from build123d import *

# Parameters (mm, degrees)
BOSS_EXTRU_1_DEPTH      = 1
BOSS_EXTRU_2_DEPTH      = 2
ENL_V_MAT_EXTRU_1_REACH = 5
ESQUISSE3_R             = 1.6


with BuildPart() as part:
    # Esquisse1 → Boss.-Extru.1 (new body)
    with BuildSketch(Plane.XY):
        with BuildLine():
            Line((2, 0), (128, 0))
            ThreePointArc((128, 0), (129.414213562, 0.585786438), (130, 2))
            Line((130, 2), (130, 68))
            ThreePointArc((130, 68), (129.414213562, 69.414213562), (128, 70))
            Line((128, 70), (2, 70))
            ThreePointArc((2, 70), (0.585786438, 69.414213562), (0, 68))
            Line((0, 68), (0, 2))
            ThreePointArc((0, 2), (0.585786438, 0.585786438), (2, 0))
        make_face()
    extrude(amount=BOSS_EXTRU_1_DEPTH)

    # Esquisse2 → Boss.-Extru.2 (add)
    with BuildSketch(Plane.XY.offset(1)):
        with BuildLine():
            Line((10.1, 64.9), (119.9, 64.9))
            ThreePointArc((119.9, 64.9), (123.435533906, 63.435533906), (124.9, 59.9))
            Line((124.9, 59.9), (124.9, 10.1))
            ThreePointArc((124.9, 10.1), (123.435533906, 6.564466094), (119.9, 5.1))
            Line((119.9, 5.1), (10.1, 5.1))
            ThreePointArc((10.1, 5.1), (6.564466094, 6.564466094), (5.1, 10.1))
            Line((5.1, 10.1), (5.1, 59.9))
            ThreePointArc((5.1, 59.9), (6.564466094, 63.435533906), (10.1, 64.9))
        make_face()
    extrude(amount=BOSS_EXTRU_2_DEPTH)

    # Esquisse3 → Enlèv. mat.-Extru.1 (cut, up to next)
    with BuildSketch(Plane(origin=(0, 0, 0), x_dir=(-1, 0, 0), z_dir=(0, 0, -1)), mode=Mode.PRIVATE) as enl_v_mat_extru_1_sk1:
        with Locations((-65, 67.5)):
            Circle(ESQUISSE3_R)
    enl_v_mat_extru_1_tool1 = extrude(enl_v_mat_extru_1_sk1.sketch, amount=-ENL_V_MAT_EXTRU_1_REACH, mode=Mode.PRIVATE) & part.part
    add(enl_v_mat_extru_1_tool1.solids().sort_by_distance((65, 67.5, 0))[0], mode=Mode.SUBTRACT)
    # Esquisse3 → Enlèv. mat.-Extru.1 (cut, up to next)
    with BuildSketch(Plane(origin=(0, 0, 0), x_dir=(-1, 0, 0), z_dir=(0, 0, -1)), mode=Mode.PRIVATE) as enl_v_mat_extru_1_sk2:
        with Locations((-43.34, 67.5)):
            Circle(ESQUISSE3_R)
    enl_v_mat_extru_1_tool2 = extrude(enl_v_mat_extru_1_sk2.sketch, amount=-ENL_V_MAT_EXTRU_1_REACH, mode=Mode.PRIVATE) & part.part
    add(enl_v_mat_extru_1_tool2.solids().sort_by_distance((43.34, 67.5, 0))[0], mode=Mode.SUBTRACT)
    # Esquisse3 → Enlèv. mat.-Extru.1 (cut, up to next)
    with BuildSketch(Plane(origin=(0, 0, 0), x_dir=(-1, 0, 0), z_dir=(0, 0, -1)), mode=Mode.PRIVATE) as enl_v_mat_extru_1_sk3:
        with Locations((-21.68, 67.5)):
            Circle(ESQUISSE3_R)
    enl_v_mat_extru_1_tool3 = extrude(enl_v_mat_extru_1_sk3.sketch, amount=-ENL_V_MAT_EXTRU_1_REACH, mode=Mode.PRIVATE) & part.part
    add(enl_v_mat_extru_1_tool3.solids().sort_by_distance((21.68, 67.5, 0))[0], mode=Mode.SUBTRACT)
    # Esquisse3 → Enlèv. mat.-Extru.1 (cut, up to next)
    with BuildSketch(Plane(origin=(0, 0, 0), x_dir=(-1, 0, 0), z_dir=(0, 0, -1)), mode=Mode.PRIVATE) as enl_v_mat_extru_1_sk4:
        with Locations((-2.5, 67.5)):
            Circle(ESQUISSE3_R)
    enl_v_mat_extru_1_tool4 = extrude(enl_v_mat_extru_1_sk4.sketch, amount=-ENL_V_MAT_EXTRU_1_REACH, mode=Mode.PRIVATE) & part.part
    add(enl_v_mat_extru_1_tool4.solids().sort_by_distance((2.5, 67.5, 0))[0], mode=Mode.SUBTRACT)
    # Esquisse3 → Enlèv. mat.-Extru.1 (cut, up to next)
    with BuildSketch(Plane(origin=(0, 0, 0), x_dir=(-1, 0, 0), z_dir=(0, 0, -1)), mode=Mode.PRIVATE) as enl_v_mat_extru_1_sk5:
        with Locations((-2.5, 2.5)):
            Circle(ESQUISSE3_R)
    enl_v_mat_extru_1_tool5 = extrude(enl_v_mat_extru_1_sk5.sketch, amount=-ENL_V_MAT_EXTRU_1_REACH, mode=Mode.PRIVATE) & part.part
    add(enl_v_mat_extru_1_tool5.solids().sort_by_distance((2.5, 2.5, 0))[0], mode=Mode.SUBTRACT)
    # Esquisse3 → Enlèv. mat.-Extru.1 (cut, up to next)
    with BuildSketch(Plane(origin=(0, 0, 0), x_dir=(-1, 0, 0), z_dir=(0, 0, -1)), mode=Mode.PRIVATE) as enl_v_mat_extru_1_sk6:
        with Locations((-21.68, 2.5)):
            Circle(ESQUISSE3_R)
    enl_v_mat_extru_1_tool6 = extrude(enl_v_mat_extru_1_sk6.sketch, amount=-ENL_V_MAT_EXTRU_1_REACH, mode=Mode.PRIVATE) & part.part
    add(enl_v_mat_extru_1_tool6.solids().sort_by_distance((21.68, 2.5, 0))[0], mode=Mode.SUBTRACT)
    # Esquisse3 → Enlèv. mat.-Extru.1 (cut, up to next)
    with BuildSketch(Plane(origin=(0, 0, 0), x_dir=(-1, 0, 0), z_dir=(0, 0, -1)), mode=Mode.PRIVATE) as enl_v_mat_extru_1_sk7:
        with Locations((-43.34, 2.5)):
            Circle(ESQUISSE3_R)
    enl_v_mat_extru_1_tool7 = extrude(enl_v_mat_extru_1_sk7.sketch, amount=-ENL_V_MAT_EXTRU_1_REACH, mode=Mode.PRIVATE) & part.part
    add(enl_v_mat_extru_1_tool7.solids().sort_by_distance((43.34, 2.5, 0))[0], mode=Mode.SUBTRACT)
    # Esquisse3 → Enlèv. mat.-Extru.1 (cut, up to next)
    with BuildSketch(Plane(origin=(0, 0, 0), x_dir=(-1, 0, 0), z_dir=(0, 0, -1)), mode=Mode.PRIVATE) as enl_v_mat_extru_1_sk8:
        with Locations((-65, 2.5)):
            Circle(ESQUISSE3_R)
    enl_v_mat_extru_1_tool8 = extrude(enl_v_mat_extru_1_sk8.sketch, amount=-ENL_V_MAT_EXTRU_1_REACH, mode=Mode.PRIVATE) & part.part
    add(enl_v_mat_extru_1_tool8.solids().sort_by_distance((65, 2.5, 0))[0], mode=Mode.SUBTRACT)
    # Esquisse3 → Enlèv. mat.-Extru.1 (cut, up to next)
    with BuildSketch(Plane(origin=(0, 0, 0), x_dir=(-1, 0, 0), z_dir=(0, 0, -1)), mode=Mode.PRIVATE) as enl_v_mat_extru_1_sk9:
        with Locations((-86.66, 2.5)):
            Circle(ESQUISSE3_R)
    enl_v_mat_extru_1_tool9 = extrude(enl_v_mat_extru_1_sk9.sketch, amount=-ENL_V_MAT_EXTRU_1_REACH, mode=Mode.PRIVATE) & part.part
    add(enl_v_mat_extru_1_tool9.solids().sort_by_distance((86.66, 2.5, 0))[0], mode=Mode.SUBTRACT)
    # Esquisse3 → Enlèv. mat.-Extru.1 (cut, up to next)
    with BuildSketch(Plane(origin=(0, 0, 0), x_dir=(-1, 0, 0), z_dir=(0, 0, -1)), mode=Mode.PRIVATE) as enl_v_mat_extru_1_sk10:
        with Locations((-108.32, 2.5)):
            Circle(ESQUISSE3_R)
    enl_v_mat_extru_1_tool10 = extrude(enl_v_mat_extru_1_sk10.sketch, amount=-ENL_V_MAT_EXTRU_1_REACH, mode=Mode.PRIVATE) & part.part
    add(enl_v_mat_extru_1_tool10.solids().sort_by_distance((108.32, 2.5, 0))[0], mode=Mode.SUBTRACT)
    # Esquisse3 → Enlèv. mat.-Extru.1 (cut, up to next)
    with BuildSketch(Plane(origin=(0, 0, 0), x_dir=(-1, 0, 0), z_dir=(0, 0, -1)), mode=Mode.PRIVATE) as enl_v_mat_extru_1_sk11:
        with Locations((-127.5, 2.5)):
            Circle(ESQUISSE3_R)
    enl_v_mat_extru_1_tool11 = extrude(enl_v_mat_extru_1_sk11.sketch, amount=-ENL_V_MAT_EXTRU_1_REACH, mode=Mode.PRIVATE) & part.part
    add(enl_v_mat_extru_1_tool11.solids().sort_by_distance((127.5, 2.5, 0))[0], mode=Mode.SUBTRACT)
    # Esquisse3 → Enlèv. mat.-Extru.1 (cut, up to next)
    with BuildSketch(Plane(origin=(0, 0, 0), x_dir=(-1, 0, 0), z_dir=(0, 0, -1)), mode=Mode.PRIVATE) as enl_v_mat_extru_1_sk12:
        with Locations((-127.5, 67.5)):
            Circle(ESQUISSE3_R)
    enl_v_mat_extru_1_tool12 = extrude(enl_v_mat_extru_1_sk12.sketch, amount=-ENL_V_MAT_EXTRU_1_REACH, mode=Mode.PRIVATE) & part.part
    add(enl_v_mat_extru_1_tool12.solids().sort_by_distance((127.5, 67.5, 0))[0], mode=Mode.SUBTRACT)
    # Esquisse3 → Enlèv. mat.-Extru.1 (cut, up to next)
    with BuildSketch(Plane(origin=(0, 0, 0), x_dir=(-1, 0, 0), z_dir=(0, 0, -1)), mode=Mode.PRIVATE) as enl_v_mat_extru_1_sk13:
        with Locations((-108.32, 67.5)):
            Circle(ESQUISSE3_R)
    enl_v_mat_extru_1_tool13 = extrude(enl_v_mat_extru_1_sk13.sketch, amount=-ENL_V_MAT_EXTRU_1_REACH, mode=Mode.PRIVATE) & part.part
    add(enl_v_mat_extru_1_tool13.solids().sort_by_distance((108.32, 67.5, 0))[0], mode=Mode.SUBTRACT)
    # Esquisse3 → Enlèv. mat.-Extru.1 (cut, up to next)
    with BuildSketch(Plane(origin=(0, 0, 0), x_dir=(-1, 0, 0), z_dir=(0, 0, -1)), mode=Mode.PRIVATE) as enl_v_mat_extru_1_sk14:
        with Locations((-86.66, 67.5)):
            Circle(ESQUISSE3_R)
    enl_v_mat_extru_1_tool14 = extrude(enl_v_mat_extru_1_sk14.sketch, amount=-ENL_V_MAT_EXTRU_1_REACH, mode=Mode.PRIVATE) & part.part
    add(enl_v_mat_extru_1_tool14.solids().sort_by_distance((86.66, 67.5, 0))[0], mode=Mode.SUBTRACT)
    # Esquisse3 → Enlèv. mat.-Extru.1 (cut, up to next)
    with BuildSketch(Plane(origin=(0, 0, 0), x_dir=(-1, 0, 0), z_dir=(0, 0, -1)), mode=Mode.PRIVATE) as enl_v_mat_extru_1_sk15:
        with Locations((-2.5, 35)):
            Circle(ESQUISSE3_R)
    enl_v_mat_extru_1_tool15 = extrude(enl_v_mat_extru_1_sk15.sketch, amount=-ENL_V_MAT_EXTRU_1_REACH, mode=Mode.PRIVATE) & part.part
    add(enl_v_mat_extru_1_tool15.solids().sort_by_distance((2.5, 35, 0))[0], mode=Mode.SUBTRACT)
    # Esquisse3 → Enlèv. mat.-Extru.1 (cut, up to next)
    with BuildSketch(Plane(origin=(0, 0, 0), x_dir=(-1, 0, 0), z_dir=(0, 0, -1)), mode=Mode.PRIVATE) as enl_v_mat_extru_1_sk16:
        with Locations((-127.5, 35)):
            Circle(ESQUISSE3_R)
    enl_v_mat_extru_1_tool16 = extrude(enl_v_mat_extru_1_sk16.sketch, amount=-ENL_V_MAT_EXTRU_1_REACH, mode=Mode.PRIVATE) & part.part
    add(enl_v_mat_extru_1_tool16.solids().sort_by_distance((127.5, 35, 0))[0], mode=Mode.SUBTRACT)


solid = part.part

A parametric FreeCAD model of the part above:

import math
import FreeCAD as App
import Part
import Sketcher

V = App.Vector

doc = App.newDocument("Part")
params = doc.addObject("Spreadsheet::Sheet", "Params")
for row, (alias, value) in enumerate([
    ("sketch1_radius", "2 mm"),
    ("sketch1_width", "126 mm"),
    ("sketch1_height", "66 mm"),
    ("pad1_length", "1 mm"),
    ("sketch2_radius", "5 mm"),
    ("sketch2_width", "109.8 mm"),
    ("sketch2_height", "49.8 mm"),
    ("pad2_length", "2 mm"),
    ("sketch3_diameter", "3.2 mm"),
    ("sketch4_diameter", "3.2 mm"),
    ("sketch5_diameter", "3.2 mm"),
    ("sketch6_diameter", "3.2 mm"),
    ("sketch7_diameter", "3.2 mm"),
    ("sketch8_diameter", "3.2 mm"),
    ("sketch9_diameter", "3.2 mm"),
    ("sketch10_diameter", "3.2 mm"),
    ("sketch11_diameter", "3.2 mm"),
    ("sketch12_diameter", "3.2 mm"),
    ("sketch13_diameter", "3.2 mm"),
    ("sketch14_diameter", "3.2 mm"),
    ("sketch15_diameter", "3.2 mm"),
    ("sketch16_diameter", "3.2 mm"),
    ("sketch17_diameter", "3.2 mm"),
    ("sketch18_diameter", "3.2 mm"),
], start=1):
    params.set(f"A{row}", alias)
    params.set(f"B{row}", "=" + value)
    params.setAlias(f"B{row}", alias)

body = doc.addObject("PartDesign::Body", "Body")

# Sketch on XY plane
sketch1 = doc.addObject("Sketcher::SketchObject", "Sketch")
body.addObject(sketch1)
sketch1.AttachmentSupport = (doc.XY_Plane, [""])
sketch1.MapMode = "FlatFace"
sketch1.addGeometry([
    Part.LineSegment(V(2, 0, 0), V(128, 0, 0)),  # 0
    Part.ArcOfCircle(Part.Circle(V(128, 2, 0), V(0, 0, 1), 2), math.radians(-90), math.radians(0)),  # 1
    Part.LineSegment(V(130, 2, 0), V(130, 68, 0)),  # 2
    Part.ArcOfCircle(Part.Circle(V(128, 68, 0), V(0, 0, 1), 2), math.radians(0), math.radians(90)),  # 3
    Part.LineSegment(V(128, 70, 0), V(2, 70, 0)),  # 4
    Part.ArcOfCircle(Part.Circle(V(2, 68, 0), V(0, 0, 1), 2), math.radians(90), math.radians(180)),  # 5
    Part.LineSegment(V(0, 68, 0), V(0, 2, 0)),  # 6
    Part.ArcOfCircle(Part.Circle(V(2, 2, 0), V(0, 0, 1), 2), math.radians(-180), math.radians(-90)),  # 7
], False)
sketch1.addConstraint([
    Sketcher.Constraint("Tangent", 0, 2, 1, 1),
    Sketcher.Constraint("Tangent", 1, 2, 2, 1),
    Sketcher.Constraint("Tangent", 2, 2, 3, 1),
    Sketcher.Constraint("Tangent", 3, 2, 4, 1),
    Sketcher.Constraint("Tangent", 4, 2, 5, 1),
    Sketcher.Constraint("Tangent", 5, 2, 6, 1),
    Sketcher.Constraint("Tangent", 6, 2, 7, 1),
    Sketcher.Constraint("Tangent", 7, 2, 0, 1),
    Sketcher.Constraint("Horizontal", 0),
    Sketcher.Constraint("Vertical", 2),
    Sketcher.Constraint("Horizontal", 4),
    Sketcher.Constraint("Vertical", 6),
    Sketcher.Constraint("Equal", 1, 3),
    Sketcher.Constraint("Equal", 3, 5),
    Sketcher.Constraint("Equal", 5, 7),
    Sketcher.Constraint("PointOnObject", 0, 2, -1),
    Sketcher.Constraint("PointOnObject", 5, 2, -2),
    Sketcher.Constraint("Radius", 1, 2.0),
    Sketcher.Constraint("DistanceX", 0, 1, 0, 2, 126.0),
    Sketcher.Constraint("DistanceY", 2, 1, 2, 2, 66.0),
])
sketch1.setExpression("Constraints[17]", "Params.sketch1_radius")
sketch1.setExpression("Constraints[18]", "Params.sketch1_width")
sketch1.setExpression("Constraints[19]", "Params.sketch1_height")
pad1 = doc.addObject("PartDesign::Pad", "Pad")
body.addObject(pad1)
pad1.Profile = sketch1
pad1.setExpression("Length", "Params.pad1_length")

# Sketch on XY plane
sketch2 = doc.addObject("Sketcher::SketchObject", "Sketch001")
body.addObject(sketch2)
sketch2.AttachmentSupport = (doc.XY_Plane, [""])
sketch2.MapMode = "FlatFace"
sketch2.AttachmentOffset = App.Placement(V(0, 0, 1), App.Rotation())
sketch2.addGeometry([
    Part.LineSegment(V(120, 65, 0), V(10, 65, 0)),  # 0
    Part.ArcOfCircle(Part.Circle(V(10, 60, 0), V(0, 0, 1), 5), math.radians(90), math.radians(180)),  # 1
    Part.LineSegment(V(5, 60, 0), V(5, 10, 0)),  # 2
    Part.ArcOfCircle(Part.Circle(V(10, 10, 0), V(0, 0, 1), 5), math.radians(180), math.radians(270)),  # 3
    Part.LineSegment(V(10, 5, 0), V(120, 5, 0)),  # 4
    Part.ArcOfCircle(Part.Circle(V(120, 10, 0), V(0, 0, 1), 5), math.radians(-90), math.radians(0)),  # 5
    Part.LineSegment(V(125, 10, 0), V(125, 60, 0)),  # 6
    Part.ArcOfCircle(Part.Circle(V(120, 60, 0), V(0, 0, 1), 5), math.radians(0), math.radians(90)),  # 7
], False)
sketch2.addConstraint([
    Sketcher.Constraint("Tangent", 0, 2, 1, 1),
    Sketcher.Constraint("Tangent", 1, 2, 2, 1),
    Sketcher.Constraint("Tangent", 2, 2, 3, 1),
    Sketcher.Constraint("Tangent", 3, 2, 4, 1),
    Sketcher.Constraint("Tangent", 4, 2, 5, 1),
    Sketcher.Constraint("Tangent", 5, 2, 6, 1),
    Sketcher.Constraint("Tangent", 6, 2, 7, 1),
    Sketcher.Constraint("Tangent", 7, 2, 0, 1),
    Sketcher.Constraint("Horizontal", 0),
    Sketcher.Constraint("Vertical", 2),
    Sketcher.Constraint("Horizontal", 4),
    Sketcher.Constraint("Vertical", 6),
    Sketcher.Constraint("Equal", 1, 3),
    Sketcher.Constraint("Equal", 3, 5),
    Sketcher.Constraint("Equal", 5, 7),
    Sketcher.Constraint("Radius", 1, 5.0),
    Sketcher.Constraint("DistanceX", 0, 2, 0, 1, 109.8),
    Sketcher.Constraint("DistanceY", 2, 2, 2, 1, 49.8),
    Sketcher.Constraint("DistanceX", -1, 1, 1, 3, 10.1),
    Sketcher.Constraint("DistanceY", -1, 1, 1, 3, 59.9),
])
sketch2.setExpression("Constraints[15]", "Params.sketch2_radius")
sketch2.setExpression("Constraints[16]", "Params.sketch2_width")
sketch2.setExpression("Constraints[17]", "Params.sketch2_height")
pad2 = doc.addObject("PartDesign::Pad", "Pad001")
body.addObject(pad2)
pad2.Profile = sketch2
pad2.setExpression("Length", "Params.pad2_length")

# Sketch on XY plane
sketch3 = doc.addObject("Sketcher::SketchObject", "Sketch002")
body.addObject(sketch3)
sketch3.AttachmentSupport = (doc.XY_Plane, [""])
sketch3.MapMode = "FlatFace"
sketch3.addGeometry(Part.Circle(V(65, 67.5, 0), V(0, 0, 1), 1.6), False)
sketch3.addConstraint([
    Sketcher.Constraint("Diameter", 0, 3.2),
    Sketcher.Constraint("DistanceX", -1, 1, 0, 3, 65.0),
    Sketcher.Constraint("DistanceY", -1, 1, 0, 3, 67.5),
])
sketch3.setExpression("Constraints[0]", "Params.sketch3_diameter")
pocket1 = doc.addObject("PartDesign::Pocket", "Pocket")
body.addObject(pocket1)
pocket1.Profile = sketch3
pocket1.Type = "UpToFirst"
pocket1.Reversed = True

# Sketch on XY plane
sketch4 = doc.addObject("Sketcher::SketchObject", "Sketch003")
body.addObject(sketch4)
sketch4.AttachmentSupport = (doc.XY_Plane, [""])
sketch4.MapMode = "FlatFace"
sketch4.addGeometry(Part.Circle(V(43.3, 67.5, 0), V(0, 0, 1), 1.6), False)
sketch4.addConstraint([
    Sketcher.Constraint("Diameter", 0, 3.2),
    Sketcher.Constraint("DistanceY", -1, 1, 0, 3, 67.5),
    Sketcher.Constraint("DistanceX", -1, 1, 0, 3, 43.34),
])
sketch4.setExpression("Constraints[0]", "Params.sketch4_diameter")
pocket2 = doc.addObject("PartDesign::Pocket", "Pocket001")
body.addObject(pocket2)
pocket2.Profile = sketch4
pocket2.Type = "UpToFirst"
pocket2.Reversed = True

# Sketch on XY plane
sketch5 = doc.addObject("Sketcher::SketchObject", "Sketch004")
body.addObject(sketch5)
sketch5.AttachmentSupport = (doc.XY_Plane, [""])
sketch5.MapMode = "FlatFace"
sketch5.addGeometry(Part.Circle(V(21.7, 67.5, 0), V(0, 0, 1), 1.6), False)
sketch5.addConstraint([
    Sketcher.Constraint("Diameter", 0, 3.2),
    Sketcher.Constraint("DistanceY", -1, 1, 0, 3, 67.5),
    Sketcher.Constraint("DistanceX", -1, 1, 0, 3, 21.68),
])
sketch5.setExpression("Constraints[0]", "Params.sketch5_diameter")
pocket3 = doc.addObject("PartDesign::Pocket", "Pocket002")
body.addObject(pocket3)
pocket3.Profile = sketch5
pocket3.Type = "UpToFirst"
pocket3.Reversed = True

# Sketch on XY plane
sketch6 = doc.addObject("Sketcher::SketchObject", "Sketch005")
body.addObject(sketch6)
sketch6.AttachmentSupport = (doc.XY_Plane, [""])
sketch6.MapMode = "FlatFace"
sketch6.addGeometry(Part.Circle(V(2.5, 67.5, 0), V(0, 0, 1), 1.6), False)
sketch6.addConstraint([
    Sketcher.Constraint("Diameter", 0, 3.2),
    Sketcher.Constraint("DistanceX", -1, 1, 0, 3, 2.5),
    Sketcher.Constraint("DistanceY", -1, 1, 0, 3, 67.5),
])
sketch6.setExpression("Constraints[0]", "Params.sketch6_diameter")
pocket4 = doc.addObject("PartDesign::Pocket", "Pocket003")
body.addObject(pocket4)
pocket4.Profile = sketch6
pocket4.Type = "UpToFirst"
pocket4.Reversed = True

# Sketch on XY plane
sketch7 = doc.addObject("Sketcher::SketchObject", "Sketch006")
body.addObject(sketch7)
sketch7.AttachmentSupport = (doc.XY_Plane, [""])
sketch7.MapMode = "FlatFace"
sketch7.addGeometry(Part.Circle(V(2.5, 2.5, 0), V(0, 0, 1), 1.6), False)
sketch7.addConstraint([
    Sketcher.Constraint("Diameter", 0, 3.2),
    Sketcher.Constraint("DistanceX", -1, 1, 0, 3, 2.5),
    Sketcher.Constraint("DistanceY", -1, 1, 0, 3, 2.5),
])
sketch7.setExpression("Constraints[0]", "Params.sketch7_diameter")
pocket5 = doc.addObject("PartDesign::Pocket", "Pocket004")
body.addObject(pocket5)
pocket5.Profile = sketch7
pocket5.Type = "UpToFirst"
pocket5.Reversed = True

# Sketch on XY plane
sketch8 = doc.addObject("Sketcher::SketchObject", "Sketch007")
body.addObject(sketch8)
sketch8.AttachmentSupport = (doc.XY_Plane, [""])
sketch8.MapMode = "FlatFace"
sketch8.addGeometry(Part.Circle(V(21.7, 2.5, 0), V(0, 0, 1), 1.6), False)
sketch8.addConstraint([
    Sketcher.Constraint("Diameter", 0, 3.2),
    Sketcher.Constraint("DistanceY", -1, 1, 0, 3, 2.5),
    Sketcher.Constraint("DistanceX", -1, 1, 0, 3, 21.68),
])
sketch8.setExpression("Constraints[0]", "Params.sketch8_diameter")
pocket6 = doc.addObject("PartDesign::Pocket", "Pocket005")
body.addObject(pocket6)
pocket6.Profile = sketch8
pocket6.Type = "UpToFirst"
pocket6.Reversed = True

# Sketch on XY plane
sketch9 = doc.addObject("Sketcher::SketchObject", "Sketch008")
body.addObject(sketch9)
sketch9.AttachmentSupport = (doc.XY_Plane, [""])
sketch9.MapMode = "FlatFace"
sketch9.addGeometry(Part.Circle(V(43.3, 2.5, 0), V(0, 0, 1), 1.6), False)
sketch9.addConstraint([
    Sketcher.Constraint("Diameter", 0, 3.2),
    Sketcher.Constraint("DistanceY", -1, 1, 0, 3, 2.5),
    Sketcher.Constraint("DistanceX", -1, 1, 0, 3, 43.34),
])
sketch9.setExpression("Constraints[0]", "Params.sketch9_diameter")
pocket7 = doc.addObject("PartDesign::Pocket", "Pocket006")
body.addObject(pocket7)
pocket7.Profile = sketch9
pocket7.Type = "UpToFirst"
pocket7.Reversed = True

# Sketch on XY plane
sketch10 = doc.addObject("Sketcher::SketchObject", "Sketch009")
body.addObject(sketch10)
sketch10.AttachmentSupport = (doc.XY_Plane, [""])
sketch10.MapMode = "FlatFace"
sketch10.addGeometry(Part.Circle(V(65, 2.5, 0), V(0, 0, 1), 1.6), False)
sketch10.addConstraint([
    Sketcher.Constraint("Diameter", 0, 3.2),
    Sketcher.Constraint("DistanceX", -1, 1, 0, 3, 65.0),
    Sketcher.Constraint("DistanceY", -1, 1, 0, 3, 2.5),
])
sketch10.setExpression("Constraints[0]", "Params.sketch10_diameter")
pocket8 = doc.addObject("PartDesign::Pocket", "Pocket007")
body.addObject(pocket8)
pocket8.Profile = sketch10
pocket8.Type = "UpToFirst"
pocket8.Reversed = True

# Sketch on XY plane
sketch11 = doc.addObject("Sketcher::SketchObject", "Sketch010")
body.addObject(sketch11)
sketch11.AttachmentSupport = (doc.XY_Plane, [""])
sketch11.MapMode = "FlatFace"
sketch11.addGeometry(Part.Circle(V(86.7, 2.5, 0), V(0, 0, 1), 1.6), False)
sketch11.addConstraint([
    Sketcher.Constraint("Diameter", 0, 3.2),
    Sketcher.Constraint("DistanceY", -1, 1, 0, 3, 2.5),
    Sketcher.Constraint("DistanceX", -1, 1, 0, 3, 86.66),
])
sketch11.setExpression("Constraints[0]", "Params.sketch11_diameter")
pocket9 = doc.addObject("PartDesign::Pocket", "Pocket008")
body.addObject(pocket9)
pocket9.Profile = sketch11
pocket9.Type = "UpToFirst"
pocket9.Reversed = True

# Sketch on XY plane
sketch12 = doc.addObject("Sketcher::SketchObject", "Sketch011")
body.addObject(sketch12)
sketch12.AttachmentSupport = (doc.XY_Plane, [""])
sketch12.MapMode = "FlatFace"
sketch12.addGeometry(Part.Circle(V(108.3, 2.5, 0), V(0, 0, 1), 1.6), False)
sketch12.addConstraint([
    Sketcher.Constraint("Diameter", 0, 3.2),
    Sketcher.Constraint("DistanceY", -1, 1, 0, 3, 2.5),
    Sketcher.Constraint("DistanceX", -1, 1, 0, 3, 108.32),
])
sketch12.setExpression("Constraints[0]", "Params.sketch12_diameter")
pocket10 = doc.addObject("PartDesign::Pocket", "Pocket009")
body.addObject(pocket10)
pocket10.Profile = sketch12
pocket10.Type = "UpToFirst"
pocket10.Reversed = True

# Sketch on XY plane
sketch13 = doc.addObject("Sketcher::SketchObject", "Sketch012")
body.addObject(sketch13)
sketch13.AttachmentSupport = (doc.XY_Plane, [""])
sketch13.MapMode = "FlatFace"
sketch13.addGeometry(Part.Circle(V(127.5, 2.5, 0), V(0, 0, 1), 1.6), False)
sketch13.addConstraint([
    Sketcher.Constraint("Diameter", 0, 3.2),
    Sketcher.Constraint("DistanceX", -1, 1, 0, 3, 127.5),
    Sketcher.Constraint("DistanceY", -1, 1, 0, 3, 2.5),
])
sketch13.setExpression("Constraints[0]", "Params.sketch13_diameter")
pocket11 = doc.addObject("PartDesign::Pocket", "Pocket010")
body.addObject(pocket11)
pocket11.Profile = sketch13
pocket11.Type = "UpToFirst"
pocket11.Reversed = True

# Sketch on XY plane
sketch14 = doc.addObject("Sketcher::SketchObject", "Sketch013")
body.addObject(sketch14)
sketch14.AttachmentSupport = (doc.XY_Plane, [""])
sketch14.MapMode = "FlatFace"
sketch14.addGeometry(Part.Circle(V(127.5, 67.5, 0), V(0, 0, 1), 1.6), False)
sketch14.addConstraint([
    Sketcher.Constraint("Diameter", 0, 3.2),
    Sketcher.Constraint("DistanceX", -1, 1, 0, 3, 127.5),
    Sketcher.Constraint("DistanceY", -1, 1, 0, 3, 67.5),
])
sketch14.setExpression("Constraints[0]", "Params.sketch14_diameter")
pocket12 = doc.addObject("PartDesign::Pocket", "Pocket011")
body.addObject(pocket12)
pocket12.Profile = sketch14
pocket12.Type = "UpToFirst"
pocket12.Reversed = True

# Sketch on XY plane
sketch15 = doc.addObject("Sketcher::SketchObject", "Sketch014")
body.addObject(sketch15)
sketch15.AttachmentSupport = (doc.XY_Plane, [""])
sketch15.MapMode = "FlatFace"
sketch15.addGeometry(Part.Circle(V(108.3, 67.5, 0), V(0, 0, 1), 1.6), False)
sketch15.addConstraint([
    Sketcher.Constraint("Diameter", 0, 3.2),
    Sketcher.Constraint("DistanceY", -1, 1, 0, 3, 67.5),
    Sketcher.Constraint("DistanceX", -1, 1, 0, 3, 108.32),
])
sketch15.setExpression("Constraints[0]", "Params.sketch15_diameter")
pocket13 = doc.addObject("PartDesign::Pocket", "Pocket012")
body.addObject(pocket13)
pocket13.Profile = sketch15
pocket13.Type = "UpToFirst"
pocket13.Reversed = True

# Sketch on XY plane
sketch16 = doc.addObject("Sketcher::SketchObject", "Sketch015")
body.addObject(sketch16)
sketch16.AttachmentSupport = (doc.XY_Plane, [""])
sketch16.MapMode = "FlatFace"
sketch16.addGeometry(Part.Circle(V(86.7, 67.5, 0), V(0, 0, 1), 1.6), False)
sketch16.addConstraint([
    Sketcher.Constraint("Diameter", 0, 3.2),
    Sketcher.Constraint("DistanceY", -1, 1, 0, 3, 67.5),
    Sketcher.Constraint("DistanceX", -1, 1, 0, 3, 86.66),
])
sketch16.setExpression("Constraints[0]", "Params.sketch16_diameter")
pocket14 = doc.addObject("PartDesign::Pocket", "Pocket013")
body.addObject(pocket14)
pocket14.Profile = sketch16
pocket14.Type = "UpToFirst"
pocket14.Reversed = True

# Sketch on XY plane
sketch17 = doc.addObject("Sketcher::SketchObject", "Sketch016")
body.addObject(sketch17)
sketch17.AttachmentSupport = (doc.XY_Plane, [""])
sketch17.MapMode = "FlatFace"
sketch17.addGeometry(Part.Circle(V(2.5, 35, 0), V(0, 0, 1), 1.6), False)
sketch17.addConstraint([
    Sketcher.Constraint("Diameter", 0, 3.2),
    Sketcher.Constraint("DistanceY", -1, 1, 0, 3, 35.0),
    Sketcher.Constraint("DistanceX", -1, 1, 0, 3, 2.5),
])
sketch17.setExpression("Constraints[0]", "Params.sketch17_diameter")
pocket15 = doc.addObject("PartDesign::Pocket", "Pocket014")
body.addObject(pocket15)
pocket15.Profile = sketch17
pocket15.Type = "UpToFirst"
pocket15.Reversed = True

# Sketch on XY plane
sketch18 = doc.addObject("Sketcher::SketchObject", "Sketch017")
body.addObject(sketch18)
sketch18.AttachmentSupport = (doc.XY_Plane, [""])
sketch18.MapMode = "FlatFace"
sketch18.addGeometry(Part.Circle(V(127.5, 35, 0), V(0, 0, 1), 1.6), False)
sketch18.addConstraint([
    Sketcher.Constraint("Diameter", 0, 3.2),
    Sketcher.Constraint("DistanceY", -1, 1, 0, 3, 35.0),
    Sketcher.Constraint("DistanceX", -1, 1, 0, 3, 127.5),
])
sketch18.setExpression("Constraints[0]", "Params.sketch18_diameter")
pocket16 = doc.addObject("PartDesign::Pocket", "Pocket015")
body.addObject(pocket16)
pocket16.Profile = sketch18
pocket16.Type = "UpToFirst"
pocket16.Reversed = True

doc.recompute()
